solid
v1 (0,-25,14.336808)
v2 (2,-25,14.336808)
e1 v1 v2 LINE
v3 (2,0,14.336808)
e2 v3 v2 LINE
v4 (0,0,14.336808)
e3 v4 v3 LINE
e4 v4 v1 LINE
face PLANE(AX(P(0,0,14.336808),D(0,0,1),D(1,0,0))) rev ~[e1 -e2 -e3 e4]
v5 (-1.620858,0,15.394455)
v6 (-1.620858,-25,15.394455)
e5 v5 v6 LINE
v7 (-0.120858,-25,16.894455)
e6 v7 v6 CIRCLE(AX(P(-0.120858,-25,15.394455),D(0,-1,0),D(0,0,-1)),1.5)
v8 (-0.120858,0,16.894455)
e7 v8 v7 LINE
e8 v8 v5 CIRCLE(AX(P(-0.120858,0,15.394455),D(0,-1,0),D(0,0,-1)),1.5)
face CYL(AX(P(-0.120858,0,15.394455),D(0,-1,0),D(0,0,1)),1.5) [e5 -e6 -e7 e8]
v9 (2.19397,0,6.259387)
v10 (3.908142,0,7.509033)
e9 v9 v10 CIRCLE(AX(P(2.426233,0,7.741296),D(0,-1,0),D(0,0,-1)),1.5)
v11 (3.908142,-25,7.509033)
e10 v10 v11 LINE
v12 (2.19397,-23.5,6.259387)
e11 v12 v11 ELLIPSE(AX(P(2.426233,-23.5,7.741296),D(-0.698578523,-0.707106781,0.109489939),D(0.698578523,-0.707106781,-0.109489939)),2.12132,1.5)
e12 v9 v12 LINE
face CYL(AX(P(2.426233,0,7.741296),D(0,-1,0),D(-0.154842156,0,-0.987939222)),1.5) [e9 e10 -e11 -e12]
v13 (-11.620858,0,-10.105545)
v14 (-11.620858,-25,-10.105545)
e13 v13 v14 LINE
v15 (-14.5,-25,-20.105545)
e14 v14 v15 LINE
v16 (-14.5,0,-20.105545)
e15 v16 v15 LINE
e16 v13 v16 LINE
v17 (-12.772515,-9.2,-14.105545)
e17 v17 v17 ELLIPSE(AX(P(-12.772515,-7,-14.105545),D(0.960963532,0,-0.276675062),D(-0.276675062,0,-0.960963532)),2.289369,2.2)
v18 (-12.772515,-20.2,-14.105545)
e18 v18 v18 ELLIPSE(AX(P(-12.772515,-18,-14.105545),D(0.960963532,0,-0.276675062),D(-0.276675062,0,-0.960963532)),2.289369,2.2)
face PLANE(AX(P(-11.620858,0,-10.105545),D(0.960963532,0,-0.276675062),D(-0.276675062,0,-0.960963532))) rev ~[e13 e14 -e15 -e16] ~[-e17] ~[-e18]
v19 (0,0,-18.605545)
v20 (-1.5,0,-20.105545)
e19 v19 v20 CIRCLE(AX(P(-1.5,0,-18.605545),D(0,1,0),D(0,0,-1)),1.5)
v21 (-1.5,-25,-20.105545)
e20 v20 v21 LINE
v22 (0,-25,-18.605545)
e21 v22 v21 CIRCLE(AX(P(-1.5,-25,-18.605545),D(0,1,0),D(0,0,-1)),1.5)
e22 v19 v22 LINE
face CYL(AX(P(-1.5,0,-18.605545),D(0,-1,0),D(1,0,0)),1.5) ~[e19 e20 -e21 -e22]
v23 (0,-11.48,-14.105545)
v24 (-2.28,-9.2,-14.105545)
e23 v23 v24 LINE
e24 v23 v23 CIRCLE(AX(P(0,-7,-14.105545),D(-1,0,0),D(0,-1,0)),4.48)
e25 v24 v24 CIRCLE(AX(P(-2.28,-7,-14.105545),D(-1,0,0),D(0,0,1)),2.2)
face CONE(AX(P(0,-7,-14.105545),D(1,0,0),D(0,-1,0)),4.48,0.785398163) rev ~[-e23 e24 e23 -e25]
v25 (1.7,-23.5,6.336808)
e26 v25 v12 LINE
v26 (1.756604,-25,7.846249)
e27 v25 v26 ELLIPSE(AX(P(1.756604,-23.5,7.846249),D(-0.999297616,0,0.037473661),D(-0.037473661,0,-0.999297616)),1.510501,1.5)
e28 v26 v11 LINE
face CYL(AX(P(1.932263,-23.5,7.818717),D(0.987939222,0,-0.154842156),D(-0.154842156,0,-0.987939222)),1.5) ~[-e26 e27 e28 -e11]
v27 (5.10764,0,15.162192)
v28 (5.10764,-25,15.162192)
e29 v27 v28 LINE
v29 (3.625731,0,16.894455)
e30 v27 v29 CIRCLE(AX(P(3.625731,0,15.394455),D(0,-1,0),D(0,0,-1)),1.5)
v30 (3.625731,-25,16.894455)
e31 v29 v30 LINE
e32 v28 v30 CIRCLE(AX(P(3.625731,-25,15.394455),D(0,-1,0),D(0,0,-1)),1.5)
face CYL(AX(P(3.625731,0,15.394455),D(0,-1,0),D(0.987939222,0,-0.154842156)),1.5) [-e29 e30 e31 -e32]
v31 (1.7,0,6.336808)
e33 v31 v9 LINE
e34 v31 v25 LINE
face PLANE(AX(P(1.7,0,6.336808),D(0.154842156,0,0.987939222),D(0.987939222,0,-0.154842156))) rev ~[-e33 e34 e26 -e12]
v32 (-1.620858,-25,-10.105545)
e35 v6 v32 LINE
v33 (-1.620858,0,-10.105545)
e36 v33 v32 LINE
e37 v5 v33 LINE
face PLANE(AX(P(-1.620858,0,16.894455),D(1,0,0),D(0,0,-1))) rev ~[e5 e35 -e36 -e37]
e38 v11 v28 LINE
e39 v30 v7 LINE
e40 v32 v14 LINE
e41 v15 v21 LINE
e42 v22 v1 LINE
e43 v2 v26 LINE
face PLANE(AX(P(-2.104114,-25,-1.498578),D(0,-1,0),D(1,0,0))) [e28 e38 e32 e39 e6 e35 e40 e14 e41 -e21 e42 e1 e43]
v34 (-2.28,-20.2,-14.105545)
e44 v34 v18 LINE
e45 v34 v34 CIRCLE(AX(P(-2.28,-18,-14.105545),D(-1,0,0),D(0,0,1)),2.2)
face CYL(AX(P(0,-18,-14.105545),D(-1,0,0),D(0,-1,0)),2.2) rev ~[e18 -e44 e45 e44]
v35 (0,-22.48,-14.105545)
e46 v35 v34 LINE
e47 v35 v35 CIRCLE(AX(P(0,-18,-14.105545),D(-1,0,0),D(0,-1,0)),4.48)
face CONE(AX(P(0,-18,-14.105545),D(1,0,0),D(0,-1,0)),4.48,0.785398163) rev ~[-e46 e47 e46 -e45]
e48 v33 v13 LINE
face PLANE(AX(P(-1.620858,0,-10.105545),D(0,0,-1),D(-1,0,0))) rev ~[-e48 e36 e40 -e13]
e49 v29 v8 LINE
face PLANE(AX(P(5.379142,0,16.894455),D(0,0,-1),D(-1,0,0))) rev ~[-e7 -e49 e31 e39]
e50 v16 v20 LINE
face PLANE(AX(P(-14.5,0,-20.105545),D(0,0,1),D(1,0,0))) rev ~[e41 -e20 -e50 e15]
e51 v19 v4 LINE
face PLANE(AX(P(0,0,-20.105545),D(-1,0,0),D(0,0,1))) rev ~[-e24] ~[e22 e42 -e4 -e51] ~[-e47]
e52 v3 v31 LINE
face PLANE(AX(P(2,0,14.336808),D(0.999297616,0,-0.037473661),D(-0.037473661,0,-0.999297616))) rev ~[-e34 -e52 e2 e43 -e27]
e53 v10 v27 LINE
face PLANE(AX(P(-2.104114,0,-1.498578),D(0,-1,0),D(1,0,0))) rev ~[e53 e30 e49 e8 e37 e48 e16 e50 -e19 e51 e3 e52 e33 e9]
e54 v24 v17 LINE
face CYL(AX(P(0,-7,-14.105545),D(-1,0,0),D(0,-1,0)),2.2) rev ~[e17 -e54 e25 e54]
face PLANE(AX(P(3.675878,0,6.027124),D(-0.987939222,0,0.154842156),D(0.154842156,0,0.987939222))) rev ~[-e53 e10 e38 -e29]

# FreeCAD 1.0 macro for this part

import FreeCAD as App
import Part
import Sketcher

V = App.Vector


def edges_at(feature, points):
    """Names of the edges that pass closest to the given points."""
    edges = feature.Shape.Edges
    near = lambda p: min(range(len(edges)), key=lambda i: edges[i].distToShape(Part.Vertex(*p))[0])
    return sorted({f"Edge{near(p) + 1}" for p in points})

doc = App.newDocument("Part")
params = doc.addObject("Spreadsheet::Sheet", "Params")
for row, (alias, value) in enumerate([
    ("sketch1_width", "2 mm"),
    ("sketch1_width2", "7 mm"),
    ("sketch1_width3", "10 mm"),
    ("sketch1_height", "27 mm"),
    ("sketch1_length", "2 mm"),
    ("pad1_length", "25 mm"),
    ("fillet_radius", "1.5 mm"),
    ("sketch2_diameter", "4.4 mm"),
    ("hole_diameter", "4.4 mm"),
    ("hole_csink_diameter", "8.96 mm"),
], start=1):
    params.set(f"A{row}", alias)
    params.set(f"B{row}", "=" + value)
    params.setAlias(f"B{row}", alias)

body = doc.addObject("PartDesign::Body", "Body")

# Sketch on XZ plane
sketch1 = body.newObject("Sketcher::SketchObject", "Sketch")
sketch1.AttachmentSupport = (doc.getObject("XZ_Plane"), [""])
sketch1.MapMode = "FlatFace"
sketch1.addGeometry([
    Part.LineSegment(V(0, -20.1, 0), V(0, 14.3, 0)),  # 0
    Part.LineSegment(V(0, 14.3, 0), V(2, 14.3, 0)),  # 1
    Part.LineSegment(V(2, 14.3, 0), V(1.7, 6.3, 0)),  # 2
    Part.LineSegment(V(1.7, 6.3, 0), V(3.7, 6, 0)),  # 3
    Part.LineSegment(V(3.7, 6, 0), V(5.4, 16.9, 0)),  # 4
    Part.LineSegment(V(5.4, 16.9, 0), V(-1.6, 16.9, 0)),  # 5
    Part.LineSegment(V(-1.6, 16.9, 0), V(-1.6, -10.1, 0)),  # 6
    Part.LineSegment(V(-1.6, -10.1, 0), V(-11.6, -10.1, 0)),  # 7
    Part.LineSegment(V(-11.6, -10.1, 0), V(-14.5, -20.1, 0)),  # 8
    Part.LineSegment(V(-14.5, -20.1, 0), V(0, -20.1, 0)),  # 9
], False)
sketch1.addConstraint([
    Sketcher.Constraint("Coincident", 0, 2, 1, 1),
    Sketcher.Constraint("Coincident", 1, 2, 2, 1),
    Sketcher.Constraint("Coincident", 2, 2, 3, 1),
    Sketcher.Constraint("Coincident", 3, 2, 4, 1),
    Sketcher.Constraint("Coincident", 4, 2, 5, 1),
    Sketcher.Constraint("Coincident", 5, 2, 6, 1),
    Sketcher.Constraint("Coincident", 6, 2, 7, 1),
    Sketcher.Constraint("Coincident", 7, 2, 8, 1),
    Sketcher.Constraint("Coincident", 8, 2, 9, 1),
    Sketcher.Constraint("Coincident", 9, 2, 0, 1),
    Sketcher.Constraint("Vertical", 0),
    Sketcher.Constraint("Horizontal", 1),
    Sketcher.Constraint("Horizontal", 5),
    Sketcher.Constraint("Vertical", 6),
    Sketcher.Constraint("Horizontal", 7),
    Sketcher.Constraint("Horizontal", 9),
    Sketcher.Constraint("PointOnObject", 0, 2, -2),
    Sketcher.Constraint("Perpendicular", 3, 4),
    Sketcher.Constraint("DistanceX", 1, 1, 1, 2, 2.0),
    Sketcher.Constraint("DistanceX", 5, 2, 5, 1, 7.0),
    Sketcher.Constraint("DistanceX", 7, 2, 7, 1, 10.0),
    Sketcher.Constraint("DistanceY", 6, 2, 6, 1, 27.0),
    Sketcher.Constraint("Distance", 3, 2.0),
    Sketcher.Constraint("Distance", 4, 11.0),
    Sketcher.Constraint("DistanceX", 9, 1, 9, 2, 14.5),
    Sketcher.Constraint("DistanceY", 2, 2, 1, 2, 8.0),
    Sketcher.Constraint("DistanceY", 8, 2, 7, 2, 10.0),
    Sketcher.Constraint("DistanceX", -1, 1, 2, 2, 1.7),
    Sketcher.Constraint("DistanceY", 0, 1, 0, 2, 34.442353),
    Sketcher.Constraint("DistanceY", -1, 1, 0, 2, 14.336808),
])
sketch1.setExpression("Constraints[18]", "Params.sketch1_width")
sketch1.setExpression("Constraints[19]", "Params.sketch1_width2")
sketch1.setExpression("Constraints[20]", "Params.sketch1_width3")
sketch1.setExpression("Constraints[21]", "Params.sketch1_height")
sketch1.setExpression("Constraints[22]", "Params.sketch1_length")
pad1 = body.newObject("PartDesign::Pad", "Pad")
pad1.Profile = sketch1
pad1.setExpression("Length", "Params.pad1_length")
doc.recompute()

fillet = body.newObject("PartDesign::Fillet", "Fillet")
fillet.Base = (pad1, edges_at(pad1, [
    (-1.621, -12.5, 16.894),
    (5.379, -12.5, 16.894),
    (0, -12.5, -20.106),
    (2.688, -25, 6.182),
    (3.676, -12.5, 6.027),
]))
fillet.setExpression("Radius", "Params.fillet_radius")

# Sketch on YZ plane
sketch2 = body.newObject("Sketcher::SketchObject", "Sketch001")
sketch2.AttachmentSupport = (doc.getObject("YZ_Plane"), [""])
sketch2.MapMode = "FlatFace"
sketch2.addGeometry([
    Part.Circle(V(-7, -14.1, 0), V(0, 0, 1), 2.2),
    Part.Circle(V(-18, -14.1, 0), V(0, 0, 1), 2.2),
], False)
sketch2.addConstraint([
    Sketcher.Constraint("Equal", 0, 1),
    Sketcher.Constraint("Horizontal", 0, 3, 1, 3),
    Sketcher.Constraint("Diameter", 0, 4.4),
    Sketcher.Constraint("DistanceX", 0, 3, -1, 1, 7.0),
    Sketcher.Constraint("DistanceX", 1, 3, -1, 1, 18.0),
    Sketcher.Constraint("DistanceY", 0, 3, -1, 1, 14.105545),
])
sketch2.setExpression("Constraints[2]", "Params.sketch2_diameter")
doc.recompute()
hole = body.newObject("PartDesign::Hole", "Hole")
hole.Profile = sketch2
hole.ThreadType = "None"
hole.setExpression("Diameter", "Params.hole_diameter")
hole.DepthType = "ThroughAll"
hole.HoleCutType = "Countersink"
hole.setExpression("HoleCutDiameter", "Params.hole_csink_diameter")
hole.HoleCutCountersinkAngle = 90

doc.recompute()
